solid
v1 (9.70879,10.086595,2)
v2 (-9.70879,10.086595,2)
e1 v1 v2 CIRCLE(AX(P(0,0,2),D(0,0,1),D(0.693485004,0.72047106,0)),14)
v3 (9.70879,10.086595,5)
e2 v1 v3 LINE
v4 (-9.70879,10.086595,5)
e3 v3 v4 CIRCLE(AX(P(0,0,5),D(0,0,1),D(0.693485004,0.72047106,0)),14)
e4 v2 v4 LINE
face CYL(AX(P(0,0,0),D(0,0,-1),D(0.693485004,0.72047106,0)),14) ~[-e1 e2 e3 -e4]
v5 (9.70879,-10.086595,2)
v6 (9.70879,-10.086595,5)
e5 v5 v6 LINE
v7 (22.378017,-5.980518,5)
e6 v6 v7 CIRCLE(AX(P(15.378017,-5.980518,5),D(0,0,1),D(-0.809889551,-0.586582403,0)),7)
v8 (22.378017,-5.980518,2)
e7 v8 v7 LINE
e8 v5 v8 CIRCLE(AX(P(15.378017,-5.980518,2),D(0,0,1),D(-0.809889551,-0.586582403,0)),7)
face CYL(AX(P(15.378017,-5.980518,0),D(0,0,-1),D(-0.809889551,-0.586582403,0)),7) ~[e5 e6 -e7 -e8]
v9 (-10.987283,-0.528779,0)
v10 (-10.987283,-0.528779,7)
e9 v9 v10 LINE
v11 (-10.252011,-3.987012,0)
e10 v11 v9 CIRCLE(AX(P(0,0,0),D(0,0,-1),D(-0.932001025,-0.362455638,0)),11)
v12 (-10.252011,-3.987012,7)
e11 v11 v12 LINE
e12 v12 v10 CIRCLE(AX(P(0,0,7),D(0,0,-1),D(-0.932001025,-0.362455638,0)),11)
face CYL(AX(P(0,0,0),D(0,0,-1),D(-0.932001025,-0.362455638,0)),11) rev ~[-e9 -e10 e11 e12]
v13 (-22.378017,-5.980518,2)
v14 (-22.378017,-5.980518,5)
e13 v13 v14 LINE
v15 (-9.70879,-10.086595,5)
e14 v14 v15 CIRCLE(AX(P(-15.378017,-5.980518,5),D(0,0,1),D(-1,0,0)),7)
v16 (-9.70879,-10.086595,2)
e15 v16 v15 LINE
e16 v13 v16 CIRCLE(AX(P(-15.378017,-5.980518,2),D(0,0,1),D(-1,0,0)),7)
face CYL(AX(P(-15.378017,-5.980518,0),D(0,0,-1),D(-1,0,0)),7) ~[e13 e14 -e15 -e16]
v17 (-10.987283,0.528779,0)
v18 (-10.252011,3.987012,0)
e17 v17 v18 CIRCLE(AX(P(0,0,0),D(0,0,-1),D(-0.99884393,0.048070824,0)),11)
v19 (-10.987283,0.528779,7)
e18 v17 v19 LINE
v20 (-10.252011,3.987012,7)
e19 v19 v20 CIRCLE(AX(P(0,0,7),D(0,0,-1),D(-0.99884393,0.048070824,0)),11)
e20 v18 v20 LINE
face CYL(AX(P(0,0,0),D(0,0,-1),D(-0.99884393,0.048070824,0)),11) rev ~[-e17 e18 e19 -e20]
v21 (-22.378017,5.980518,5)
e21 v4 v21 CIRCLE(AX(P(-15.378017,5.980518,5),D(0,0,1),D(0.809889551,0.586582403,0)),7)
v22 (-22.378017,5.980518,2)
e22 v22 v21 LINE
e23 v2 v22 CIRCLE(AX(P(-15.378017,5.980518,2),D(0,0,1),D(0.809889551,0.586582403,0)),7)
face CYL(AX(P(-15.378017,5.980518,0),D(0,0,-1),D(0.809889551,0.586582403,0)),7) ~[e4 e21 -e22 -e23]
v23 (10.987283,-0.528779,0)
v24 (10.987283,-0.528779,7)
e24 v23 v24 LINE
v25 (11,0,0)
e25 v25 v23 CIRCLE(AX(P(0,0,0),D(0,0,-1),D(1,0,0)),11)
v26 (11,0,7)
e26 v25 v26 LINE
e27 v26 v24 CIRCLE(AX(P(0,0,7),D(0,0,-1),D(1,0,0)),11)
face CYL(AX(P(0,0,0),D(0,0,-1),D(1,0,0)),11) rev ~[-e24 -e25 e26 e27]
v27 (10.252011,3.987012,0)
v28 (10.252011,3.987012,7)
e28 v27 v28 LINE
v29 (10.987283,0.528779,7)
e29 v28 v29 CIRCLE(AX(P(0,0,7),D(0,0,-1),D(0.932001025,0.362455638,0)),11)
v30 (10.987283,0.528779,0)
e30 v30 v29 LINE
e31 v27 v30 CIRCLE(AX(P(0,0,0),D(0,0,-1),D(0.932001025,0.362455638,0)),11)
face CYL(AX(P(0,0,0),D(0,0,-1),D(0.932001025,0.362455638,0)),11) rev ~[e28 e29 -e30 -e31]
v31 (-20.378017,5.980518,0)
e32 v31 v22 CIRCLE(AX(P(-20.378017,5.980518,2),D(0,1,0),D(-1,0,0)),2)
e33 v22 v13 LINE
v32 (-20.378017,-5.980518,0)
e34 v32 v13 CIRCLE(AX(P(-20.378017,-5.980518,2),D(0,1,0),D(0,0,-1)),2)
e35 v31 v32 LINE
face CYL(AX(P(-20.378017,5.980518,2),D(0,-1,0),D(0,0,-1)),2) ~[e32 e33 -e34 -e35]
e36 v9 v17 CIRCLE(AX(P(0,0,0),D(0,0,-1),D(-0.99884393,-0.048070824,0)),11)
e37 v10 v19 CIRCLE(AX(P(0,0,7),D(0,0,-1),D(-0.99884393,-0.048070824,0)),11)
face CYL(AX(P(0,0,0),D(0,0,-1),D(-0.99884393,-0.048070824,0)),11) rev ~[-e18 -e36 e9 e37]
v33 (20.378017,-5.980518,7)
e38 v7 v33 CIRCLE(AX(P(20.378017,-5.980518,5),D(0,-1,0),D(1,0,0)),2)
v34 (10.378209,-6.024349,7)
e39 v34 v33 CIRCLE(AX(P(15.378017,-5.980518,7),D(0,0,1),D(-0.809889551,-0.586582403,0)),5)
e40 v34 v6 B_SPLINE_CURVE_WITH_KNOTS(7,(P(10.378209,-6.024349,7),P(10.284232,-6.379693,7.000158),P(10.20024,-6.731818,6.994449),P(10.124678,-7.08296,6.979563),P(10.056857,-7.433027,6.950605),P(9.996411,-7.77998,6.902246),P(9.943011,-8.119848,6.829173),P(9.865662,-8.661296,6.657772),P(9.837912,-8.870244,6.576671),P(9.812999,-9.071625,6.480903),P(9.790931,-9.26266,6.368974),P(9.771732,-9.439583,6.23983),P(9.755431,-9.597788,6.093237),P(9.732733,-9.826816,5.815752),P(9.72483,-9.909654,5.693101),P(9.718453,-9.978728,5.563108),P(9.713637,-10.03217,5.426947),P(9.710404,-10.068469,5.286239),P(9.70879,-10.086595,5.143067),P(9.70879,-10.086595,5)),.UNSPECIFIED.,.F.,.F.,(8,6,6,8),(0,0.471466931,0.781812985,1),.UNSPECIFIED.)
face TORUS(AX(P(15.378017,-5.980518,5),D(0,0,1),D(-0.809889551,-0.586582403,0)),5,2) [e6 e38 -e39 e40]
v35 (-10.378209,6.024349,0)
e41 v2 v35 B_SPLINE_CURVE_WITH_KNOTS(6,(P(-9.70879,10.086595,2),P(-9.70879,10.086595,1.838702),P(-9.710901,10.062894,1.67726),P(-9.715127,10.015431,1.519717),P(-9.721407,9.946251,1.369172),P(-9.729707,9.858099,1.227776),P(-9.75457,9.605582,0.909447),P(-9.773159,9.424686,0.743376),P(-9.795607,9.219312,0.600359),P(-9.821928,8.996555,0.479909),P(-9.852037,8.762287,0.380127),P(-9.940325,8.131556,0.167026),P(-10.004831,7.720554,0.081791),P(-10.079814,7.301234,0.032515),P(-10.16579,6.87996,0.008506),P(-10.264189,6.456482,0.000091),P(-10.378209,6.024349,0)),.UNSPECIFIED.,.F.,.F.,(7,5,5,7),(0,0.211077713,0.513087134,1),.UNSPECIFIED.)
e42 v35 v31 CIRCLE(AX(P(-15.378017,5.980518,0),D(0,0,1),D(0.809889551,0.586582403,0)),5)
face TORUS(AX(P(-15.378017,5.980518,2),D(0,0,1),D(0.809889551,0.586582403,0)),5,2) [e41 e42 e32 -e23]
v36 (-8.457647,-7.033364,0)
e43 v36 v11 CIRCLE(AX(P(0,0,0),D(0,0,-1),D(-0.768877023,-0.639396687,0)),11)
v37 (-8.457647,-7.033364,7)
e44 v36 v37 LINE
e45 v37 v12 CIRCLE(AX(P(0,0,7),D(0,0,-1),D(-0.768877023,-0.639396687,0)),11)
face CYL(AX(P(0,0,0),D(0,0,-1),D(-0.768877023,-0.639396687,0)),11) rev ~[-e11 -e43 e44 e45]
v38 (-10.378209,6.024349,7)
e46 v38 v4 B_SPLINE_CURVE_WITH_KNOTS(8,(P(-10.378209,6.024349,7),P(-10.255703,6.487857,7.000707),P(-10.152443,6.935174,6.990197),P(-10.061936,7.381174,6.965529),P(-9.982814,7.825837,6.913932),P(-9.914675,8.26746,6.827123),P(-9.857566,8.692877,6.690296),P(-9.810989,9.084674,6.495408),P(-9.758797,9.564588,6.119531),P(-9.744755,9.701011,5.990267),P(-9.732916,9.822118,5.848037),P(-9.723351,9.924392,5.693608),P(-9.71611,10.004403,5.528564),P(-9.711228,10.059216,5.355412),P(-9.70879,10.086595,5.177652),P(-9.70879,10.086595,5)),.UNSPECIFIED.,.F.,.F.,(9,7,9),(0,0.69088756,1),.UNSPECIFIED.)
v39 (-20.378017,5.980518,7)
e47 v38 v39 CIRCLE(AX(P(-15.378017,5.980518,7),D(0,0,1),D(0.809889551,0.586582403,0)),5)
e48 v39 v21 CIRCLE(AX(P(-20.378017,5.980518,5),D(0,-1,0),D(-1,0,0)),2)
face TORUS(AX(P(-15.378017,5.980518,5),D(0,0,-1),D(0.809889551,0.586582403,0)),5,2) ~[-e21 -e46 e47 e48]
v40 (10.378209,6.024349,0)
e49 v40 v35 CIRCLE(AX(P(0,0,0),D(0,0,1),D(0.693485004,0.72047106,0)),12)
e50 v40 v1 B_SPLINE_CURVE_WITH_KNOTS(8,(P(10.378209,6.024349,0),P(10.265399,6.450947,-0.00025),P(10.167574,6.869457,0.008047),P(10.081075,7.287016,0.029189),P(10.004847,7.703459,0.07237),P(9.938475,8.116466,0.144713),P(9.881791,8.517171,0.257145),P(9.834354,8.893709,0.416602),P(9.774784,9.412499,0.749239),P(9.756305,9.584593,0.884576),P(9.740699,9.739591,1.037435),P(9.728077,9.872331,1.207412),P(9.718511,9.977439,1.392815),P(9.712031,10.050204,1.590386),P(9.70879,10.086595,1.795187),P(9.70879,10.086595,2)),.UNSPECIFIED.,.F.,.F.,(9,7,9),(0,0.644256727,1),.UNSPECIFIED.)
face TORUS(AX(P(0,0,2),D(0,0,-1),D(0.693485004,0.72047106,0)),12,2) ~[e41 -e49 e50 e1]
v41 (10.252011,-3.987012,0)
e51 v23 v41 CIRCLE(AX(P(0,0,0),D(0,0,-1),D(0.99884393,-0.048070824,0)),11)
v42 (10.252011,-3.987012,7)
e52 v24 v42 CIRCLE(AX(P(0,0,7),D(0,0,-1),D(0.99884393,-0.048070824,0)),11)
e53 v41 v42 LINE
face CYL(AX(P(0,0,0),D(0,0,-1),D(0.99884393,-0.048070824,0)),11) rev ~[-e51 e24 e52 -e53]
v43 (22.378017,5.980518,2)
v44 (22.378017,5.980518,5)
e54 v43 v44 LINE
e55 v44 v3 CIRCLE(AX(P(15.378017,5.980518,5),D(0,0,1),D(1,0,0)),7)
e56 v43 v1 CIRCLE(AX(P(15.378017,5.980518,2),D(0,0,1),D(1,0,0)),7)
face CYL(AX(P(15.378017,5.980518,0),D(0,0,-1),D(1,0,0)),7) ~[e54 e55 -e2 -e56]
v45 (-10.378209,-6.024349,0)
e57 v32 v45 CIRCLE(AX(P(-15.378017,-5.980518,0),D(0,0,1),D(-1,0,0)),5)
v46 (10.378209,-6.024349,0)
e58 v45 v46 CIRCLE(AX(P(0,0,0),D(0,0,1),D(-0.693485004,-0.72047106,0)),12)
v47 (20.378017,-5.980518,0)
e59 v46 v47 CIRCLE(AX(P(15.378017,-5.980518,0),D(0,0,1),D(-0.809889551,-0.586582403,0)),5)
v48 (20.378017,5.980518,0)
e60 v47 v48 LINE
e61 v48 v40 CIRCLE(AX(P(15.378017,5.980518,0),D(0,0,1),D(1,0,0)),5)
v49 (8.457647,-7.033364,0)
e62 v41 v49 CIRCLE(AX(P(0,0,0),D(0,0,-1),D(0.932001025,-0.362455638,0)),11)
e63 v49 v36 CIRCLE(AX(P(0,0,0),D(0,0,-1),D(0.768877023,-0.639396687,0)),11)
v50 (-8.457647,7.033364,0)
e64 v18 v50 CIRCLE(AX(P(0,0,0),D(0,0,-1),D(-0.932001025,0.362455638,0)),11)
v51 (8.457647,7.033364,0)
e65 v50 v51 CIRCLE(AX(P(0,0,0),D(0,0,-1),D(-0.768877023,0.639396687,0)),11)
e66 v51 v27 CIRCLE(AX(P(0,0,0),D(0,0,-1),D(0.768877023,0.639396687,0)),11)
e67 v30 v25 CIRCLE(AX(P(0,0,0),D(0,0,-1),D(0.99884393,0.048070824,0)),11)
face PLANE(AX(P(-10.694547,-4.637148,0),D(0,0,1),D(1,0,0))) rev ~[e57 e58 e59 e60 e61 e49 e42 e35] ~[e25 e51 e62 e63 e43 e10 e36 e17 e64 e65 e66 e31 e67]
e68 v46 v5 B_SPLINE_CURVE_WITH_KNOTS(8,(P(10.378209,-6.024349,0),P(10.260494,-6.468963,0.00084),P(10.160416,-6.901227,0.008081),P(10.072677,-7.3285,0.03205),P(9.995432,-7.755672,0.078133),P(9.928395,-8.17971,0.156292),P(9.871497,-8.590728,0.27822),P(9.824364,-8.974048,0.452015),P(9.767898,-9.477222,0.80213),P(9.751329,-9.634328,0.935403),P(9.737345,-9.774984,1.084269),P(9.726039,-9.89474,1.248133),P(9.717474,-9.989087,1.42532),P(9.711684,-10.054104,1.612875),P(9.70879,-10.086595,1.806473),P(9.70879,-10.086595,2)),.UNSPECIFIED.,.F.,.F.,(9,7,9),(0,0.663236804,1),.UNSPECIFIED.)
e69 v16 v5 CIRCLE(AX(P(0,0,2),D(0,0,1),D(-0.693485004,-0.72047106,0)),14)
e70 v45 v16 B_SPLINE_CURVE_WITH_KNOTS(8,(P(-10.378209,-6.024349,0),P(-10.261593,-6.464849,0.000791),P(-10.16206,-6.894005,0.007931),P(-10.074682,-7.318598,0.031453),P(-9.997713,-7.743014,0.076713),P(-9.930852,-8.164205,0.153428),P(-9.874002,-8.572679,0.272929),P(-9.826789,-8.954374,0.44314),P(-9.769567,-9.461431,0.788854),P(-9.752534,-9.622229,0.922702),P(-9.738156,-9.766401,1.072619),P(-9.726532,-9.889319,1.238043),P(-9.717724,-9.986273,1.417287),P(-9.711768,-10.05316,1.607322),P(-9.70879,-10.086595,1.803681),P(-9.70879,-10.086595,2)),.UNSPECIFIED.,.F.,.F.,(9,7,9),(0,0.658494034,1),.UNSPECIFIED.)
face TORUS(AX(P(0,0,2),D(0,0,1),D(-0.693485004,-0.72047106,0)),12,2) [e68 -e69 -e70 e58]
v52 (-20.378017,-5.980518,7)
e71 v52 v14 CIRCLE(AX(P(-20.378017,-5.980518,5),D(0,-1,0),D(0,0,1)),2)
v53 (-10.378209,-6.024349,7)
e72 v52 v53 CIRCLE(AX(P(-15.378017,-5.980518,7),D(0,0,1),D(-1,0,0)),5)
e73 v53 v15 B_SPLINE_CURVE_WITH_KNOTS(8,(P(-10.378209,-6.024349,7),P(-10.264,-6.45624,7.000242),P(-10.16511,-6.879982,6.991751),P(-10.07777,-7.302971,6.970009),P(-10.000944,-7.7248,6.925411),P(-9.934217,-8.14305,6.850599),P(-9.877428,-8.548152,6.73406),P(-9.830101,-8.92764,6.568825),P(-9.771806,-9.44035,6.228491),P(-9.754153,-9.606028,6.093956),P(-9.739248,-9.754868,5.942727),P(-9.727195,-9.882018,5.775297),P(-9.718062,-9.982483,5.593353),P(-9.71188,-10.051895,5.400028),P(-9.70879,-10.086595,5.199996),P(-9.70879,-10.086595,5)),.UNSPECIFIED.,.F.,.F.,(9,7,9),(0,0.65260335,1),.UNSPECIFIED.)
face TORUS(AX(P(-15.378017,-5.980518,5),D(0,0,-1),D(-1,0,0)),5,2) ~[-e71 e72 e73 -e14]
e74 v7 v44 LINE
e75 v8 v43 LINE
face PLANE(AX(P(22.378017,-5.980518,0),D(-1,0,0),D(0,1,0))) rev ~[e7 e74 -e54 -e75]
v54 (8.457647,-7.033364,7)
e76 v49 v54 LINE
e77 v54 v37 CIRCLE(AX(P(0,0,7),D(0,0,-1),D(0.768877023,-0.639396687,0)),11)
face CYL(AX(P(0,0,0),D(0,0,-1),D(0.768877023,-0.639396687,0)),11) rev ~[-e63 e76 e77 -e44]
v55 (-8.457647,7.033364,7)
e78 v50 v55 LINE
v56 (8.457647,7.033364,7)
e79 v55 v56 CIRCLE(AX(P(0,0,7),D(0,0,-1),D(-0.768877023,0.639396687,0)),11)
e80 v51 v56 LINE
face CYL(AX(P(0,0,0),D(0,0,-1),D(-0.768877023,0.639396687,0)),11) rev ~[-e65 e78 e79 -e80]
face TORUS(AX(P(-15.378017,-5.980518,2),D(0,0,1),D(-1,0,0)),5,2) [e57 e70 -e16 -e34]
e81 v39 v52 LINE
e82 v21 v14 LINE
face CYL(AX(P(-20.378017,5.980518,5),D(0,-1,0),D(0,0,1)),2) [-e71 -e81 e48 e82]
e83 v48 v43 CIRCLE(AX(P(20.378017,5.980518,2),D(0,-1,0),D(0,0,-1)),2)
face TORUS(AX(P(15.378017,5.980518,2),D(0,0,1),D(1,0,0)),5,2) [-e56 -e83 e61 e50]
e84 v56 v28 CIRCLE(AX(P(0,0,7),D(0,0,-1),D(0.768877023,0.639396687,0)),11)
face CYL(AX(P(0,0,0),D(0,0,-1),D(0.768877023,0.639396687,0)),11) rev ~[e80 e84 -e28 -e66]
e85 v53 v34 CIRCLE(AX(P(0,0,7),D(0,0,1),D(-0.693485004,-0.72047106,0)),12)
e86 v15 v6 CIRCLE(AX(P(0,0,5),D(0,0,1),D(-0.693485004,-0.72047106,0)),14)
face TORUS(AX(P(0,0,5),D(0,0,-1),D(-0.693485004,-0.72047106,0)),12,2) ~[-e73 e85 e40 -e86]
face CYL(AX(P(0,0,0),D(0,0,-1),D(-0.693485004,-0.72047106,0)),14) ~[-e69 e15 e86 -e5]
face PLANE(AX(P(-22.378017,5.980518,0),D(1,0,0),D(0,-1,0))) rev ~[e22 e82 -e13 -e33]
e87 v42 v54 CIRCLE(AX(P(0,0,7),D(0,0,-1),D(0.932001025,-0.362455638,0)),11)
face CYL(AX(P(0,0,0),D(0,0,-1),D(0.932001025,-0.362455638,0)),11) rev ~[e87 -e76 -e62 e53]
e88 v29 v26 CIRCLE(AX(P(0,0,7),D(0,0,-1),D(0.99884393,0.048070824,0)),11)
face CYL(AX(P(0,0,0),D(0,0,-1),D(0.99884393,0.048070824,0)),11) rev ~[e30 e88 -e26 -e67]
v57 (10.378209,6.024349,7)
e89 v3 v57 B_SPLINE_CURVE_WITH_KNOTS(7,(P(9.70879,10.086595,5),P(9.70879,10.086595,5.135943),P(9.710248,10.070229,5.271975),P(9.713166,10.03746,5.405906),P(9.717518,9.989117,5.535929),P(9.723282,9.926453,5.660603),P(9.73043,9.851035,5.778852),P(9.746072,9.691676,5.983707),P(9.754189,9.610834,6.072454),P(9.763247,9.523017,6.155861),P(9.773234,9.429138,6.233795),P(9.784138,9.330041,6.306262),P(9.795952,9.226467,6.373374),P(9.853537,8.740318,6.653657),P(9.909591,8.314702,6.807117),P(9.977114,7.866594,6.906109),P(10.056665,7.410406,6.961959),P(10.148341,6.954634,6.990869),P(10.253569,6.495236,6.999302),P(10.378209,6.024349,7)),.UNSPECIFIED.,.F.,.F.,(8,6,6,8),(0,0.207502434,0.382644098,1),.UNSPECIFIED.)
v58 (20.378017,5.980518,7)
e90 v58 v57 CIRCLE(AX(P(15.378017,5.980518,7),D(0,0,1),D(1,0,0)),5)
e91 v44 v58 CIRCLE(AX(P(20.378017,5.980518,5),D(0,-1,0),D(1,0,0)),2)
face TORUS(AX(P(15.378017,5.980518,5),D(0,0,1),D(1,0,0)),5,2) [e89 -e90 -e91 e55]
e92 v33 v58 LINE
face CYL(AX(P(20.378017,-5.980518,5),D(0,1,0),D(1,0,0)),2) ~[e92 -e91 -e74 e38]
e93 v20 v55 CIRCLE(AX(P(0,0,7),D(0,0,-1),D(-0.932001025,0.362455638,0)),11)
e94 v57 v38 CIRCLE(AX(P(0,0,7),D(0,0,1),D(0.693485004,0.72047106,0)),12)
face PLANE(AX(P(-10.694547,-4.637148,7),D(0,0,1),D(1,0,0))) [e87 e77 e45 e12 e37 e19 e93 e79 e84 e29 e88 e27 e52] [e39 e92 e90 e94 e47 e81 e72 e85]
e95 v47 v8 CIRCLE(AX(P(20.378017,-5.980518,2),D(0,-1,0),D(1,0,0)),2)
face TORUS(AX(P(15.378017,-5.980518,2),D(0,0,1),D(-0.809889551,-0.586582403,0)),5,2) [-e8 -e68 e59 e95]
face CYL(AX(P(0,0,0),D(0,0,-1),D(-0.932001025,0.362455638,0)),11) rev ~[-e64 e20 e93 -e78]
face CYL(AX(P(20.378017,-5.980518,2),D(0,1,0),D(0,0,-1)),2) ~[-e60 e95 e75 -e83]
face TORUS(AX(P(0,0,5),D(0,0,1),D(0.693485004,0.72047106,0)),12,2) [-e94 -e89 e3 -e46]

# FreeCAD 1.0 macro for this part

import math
import FreeCAD as App
import Part
import Sketcher
from FreeCAD import Vector


def edges_at(feature, points):
    """Names of the edges that pass closest to the given points."""
    edges = feature.Shape.Edges
    near = lambda p: min(range(len(edges)), key=lambda i: edges[i].distToShape(Part.Vertex(*p))[0])
    return sorted({f"Edge{near(p) + 1}" for p in points})

doc = App.newDocument("Part")
body = doc.addObject("PartDesign::Body", "Body")

# Sketch on XY plane
sketch1 = doc.addObject("Sketcher::SketchObject", "Sketch")
body.addObject(sketch1)
sketch1.AttachmentSupport = (doc.XY_Plane, [""])
sketch1.MapMode = "FlatFace"
sketch1.addGeometry([
    Part.ArcOfCircle(Part.Circle(Vector(15.378, 5.981, 0), Vector(0, 0, 1), 7), math.radians(0), math.radians(144)),  # 0
    Part.ArcOfCircle(Part.Circle(Vector(0, 0, 0), Vector(0, 0, 1), 14), math.radians(46), math.radians(134)),  # 1
    Part.ArcOfCircle(Part.Circle(Vector(-15.378, 5.981, 0), Vector(0, 0, 1), 7), math.radians(36), math.radians(180)),  # 2
    Part.LineSegment(Vector(-22.378, 5.981, 0), Vector(-22.378, -5.981, 0)),  # 3
    Part.ArcOfCircle(Part.Circle(Vector(-15.378, -5.981, 0), Vector(0, 0, 1), 7), math.radians(180), math.radians(324)),  # 4
    Part.ArcOfCircle(Part.Circle(Vector(0, 0, 0), Vector(0, 0, 1), 14), math.radians(-134), math.radians(-46)),  # 5
    Part.ArcOfCircle(Part.Circle(Vector(15.378, -5.981, 0), Vector(0, 0, 1), 7), math.radians(-144), math.radians(0)),  # 6
    Part.LineSegment(Vector(22.378, -5.981, 0), Vector(22.378, 5.981, 0)),  # 7
    Part.ArcOfCircle(Part.Circle(Vector(0, 0, 0), Vector(0, 0, 1), 11), math.radians(21.25), math.radians(39.75)),  # 8
    Part.ArcOfCircle(Part.Circle(Vector(0, 0, 0), Vector(0, 0, 1), 11), math.radians(2.76), math.radians(21.25)),  # 9
    Part.ArcOfCircle(Part.Circle(Vector(0, 0, 0), Vector(0, 0, 1), 11), math.radians(0), math.radians(2.76)),  # 10
    Part.ArcOfCircle(Part.Circle(Vector(0, 0, 0), Vector(0, 0, 1), 11), math.radians(-2.76), math.radians(0)),  # 11
    Part.ArcOfCircle(Part.Circle(Vector(0, 0, 0), Vector(0, 0, 1), 11), math.radians(-21.25), math.radians(-2.76)),  # 12
    Part.ArcOfCircle(Part.Circle(Vector(0, 0, 0), Vector(0, 0, 1), 11), math.radians(-39.75), math.radians(-21.25)),  # 13
    Part.ArcOfCircle(Part.Circle(Vector(0, 0, 0), Vector(0, 0, 1), 11), math.radians(-140), math.radians(-40)),  # 14
    Part.ArcOfCircle(Part.Circle(Vector(0, 0, 0), Vector(0, 0, 1), 11), math.radians(-158.75), math.radians(-140.25)),  # 15
    Part.ArcOfCircle(Part.Circle(Vector(0, 0, 0), Vector(0, 0, 1), 11), math.radians(-177.24), math.radians(-158.75)),  # 16
    Part.ArcOfCircle(Part.Circle(Vector(0, 0, 0), Vector(0, 0, 1), 11), math.radians(177.24), math.radians(182.76)),  # 17
    Part.ArcOfCircle(Part.Circle(Vector(0, 0, 0), Vector(0, 0, 1), 11), math.radians(158.75), math.radians(177.24)),  # 18
    Part.ArcOfCircle(Part.Circle(Vector(0, 0, 0), Vector(0, 0, 1), 11), math.radians(140.25), math.radians(158.75)),  # 19
    Part.ArcOfCircle(Part.Circle(Vector(0, 0, 0), Vector(0, 0, 1), 11), math.radians(40), math.radians(140)),  # 20
    Part.ArcOfCircle(Part.Circle(Vector(-15.378, -5.981, 0), Vector(0, 0, 1), 5.25), math.radians(0), math.radians(74)),  # 21
    Part.ArcOfCircle(Part.Circle(Vector(-15.378, -5.981, 0), Vector(0, 0, 1), 5.25), math.radians(-32), math.radians(0)),  # 22
    Part.ArcOfCircle(Part.Circle(Vector(-15.378, -5.981, 0), Vector(0, 0, 1), 5.25), math.radians(104), math.radians(328)),  # 23
    Part.ArcOfCircle(Part.Circle(Vector(-15.378, -5.981, 0), Vector(0, 0, 1), 5.25), math.radians(76), math.radians(104)),  # 24
    Part.ArcOfCircle(Part.Circle(Vector(-15.378, -5.981, 0), Vector(0, 0, 1), 5.25), math.radians(74.44), math.radians(75.57)),  # 25
    Part.ArcOfCircle(Part.Circle(Vector(15.378, 5.981, 0), Vector(0, 0, 1), 7), math.radians(-121.31), math.radians(-101.58)),  # 26
    Part.ArcOfCircle(Part.Circle(Vector(15.378, -5.981, 0), Vector(0, 0, 1), 7), math.radians(101.58), math.radians(121.31)),  # 27
    Part.ArcOfCircle(Part.Circle(Vector(0, 0, 0), Vector(0, 0, 1), 14), math.radians(0), math.radians(3.59)),  # 28
    Part.ArcOfCircle(Part.Circle(Vector(0, 0, 0), Vector(0, 0, 1), 14), math.radians(-3.59), math.radians(0)),  # 29
    Part.ArcOfCircle(Part.Circle(Vector(15.378, 5.981, 0), Vector(0, 0, 1), 7), math.radians(-101.58), math.radians(-100.77)),  # 30
    Part.ArcOfCircle(Part.Circle(Vector(15.378, -5.981, 0), Vector(0, 0, 1), 5.25), math.radians(76), math.radians(104)),  # 31
    Part.ArcOfCircle(Part.Circle(Vector(15.378, -5.981, 0), Vector(0, 0, 1), 5.25), math.radians(-148), math.radians(76)),  # 32
    Part.ArcOfCircle(Part.Circle(Vector(15.378, -5.981, 0), Vector(0, 0, 1), 5.25), math.radians(106), math.radians(212)),  # 33
    Part.ArcOfCircle(Part.Circle(Vector(0, 0, 0), Vector(0, 0, 1), 14), math.radians(-3.78), math.radians(-3.59)),  # 34
    Part.ArcOfCircle(Part.Circle(Vector(-15.378, 5.981, 0), Vector(0, 0, 1), 5.25), math.radians(-75.57), math.radians(-74.44)),  # 35
    Part.ArcOfCircle(Part.Circle(Vector(-15.378, 5.981, 0), Vector(0, 0, 1), 5.25), math.radians(-104), math.radians(-76)),  # 36
    Part.ArcOfCircle(Part.Circle(Vector(-15.378, 5.981, 0), Vector(0, 0, 1), 5.25), math.radians(32), math.radians(256)),  # 37
    Part.ArcOfCircle(Part.Circle(Vector(-15.378, 5.981, 0), Vector(0, 0, 1), 5.25), math.radians(0), math.radians(32)),  # 38
    Part.ArcOfCircle(Part.Circle(Vector(-15.378, 5.981, 0), Vector(0, 0, 1), 5.25), math.radians(-74), math.radians(0)),  # 39
    Part.ArcOfCircle(Part.Circle(Vector(15.378, 5.981, 0), Vector(0, 0, 1), 5.25), math.radians(-104), math.radians(-76)),  # 40
    Part.ArcOfCircle(Part.Circle(Vector(15.378, 5.981, 0), Vector(0, 0, 1), 5.25), math.radians(-105.56), math.radians(-104.43)),  # 41
    Part.ArcOfCircle(Part.Circle(Vector(15.378, 5.981, 0), Vector(0, 0, 1), 5.25), math.radians(148), math.radians(254)),  # 42
    Part.ArcOfCircle(Part.Circle(Vector(15.378, 5.981, 0), Vector(0, 0, 1), 5.25), math.radians(-76), math.radians(148)),  # 43
], False)
sketch1.addConstraint([
    Sketcher.Constraint("Coincident", 0, 2, 1, 1),
    Sketcher.Constraint("Coincident", 1, 2, 2, 1),
    Sketcher.Constraint("Tangent", 2, 2, 3, 1),
    Sketcher.Constraint("Tangent", 3, 2, 4, 1),
    Sketcher.Constraint("Coincident", 4, 2, 5, 1),
    Sketcher.Constraint("Coincident", 5, 2, 6, 1),
    Sketcher.Constraint("Tangent", 6, 2, 7, 1),
    Sketcher.Constraint("Tangent", 7, 2, 0, 1),
    Sketcher.Constraint("Tangent", 8, 1, 9, 2),
    Sketcher.Constraint("Tangent", 9, 1, 10, 2),
    Sketcher.Constraint("Tangent", 10, 1, 11, 2),
    Sketcher.Constraint("Tangent", 11, 1, 12, 2),
    Sketcher.Constraint("Tangent", 12, 1, 13, 2),
    Sketcher.Constraint("Tangent", 13, 1, 14, 2),
    Sketcher.Constraint("Tangent", 14, 1, 15, 2),
    Sketcher.Constraint("Tangent", 15, 1, 16, 2),
    Sketcher.Constraint("Tangent", 16, 1, 17, 2),
    Sketcher.Constraint("Tangent", 17, 1, 18, 2),
    Sketcher.Constraint("Tangent", 18, 1, 19, 2),
    Sketcher.Constraint("Tangent", 19, 1, 20, 2),
    Sketcher.Constraint("Tangent", 20, 1, 8, 2),
    Sketcher.Constraint("Tangent", 21, 1, 22, 2),
    Sketcher.Constraint("Tangent", 22, 1, 23, 2),
    Sketcher.Constraint("Tangent", 23, 1, 24, 2),
    Sketcher.Constraint("Tangent", 24, 1, 25, 2),
    Sketcher.Constraint("Tangent", 25, 1, 21, 2),
    Sketcher.Constraint("Coincident", 26, 1, 27, 2),
    Sketcher.Constraint("Coincident", 27, 1, 28, 2),
    Sketcher.Constraint("Tangent", 28, 1, 29, 2),
    Sketcher.Constraint("Coincident", 29, 1, 26, 2),
    Sketcher.Constraint("Coincident", 30, 2, 31, 2),
    Sketcher.Constraint("Tangent", 31, 1, 32, 2),
    Sketcher.Constraint("Tangent", 32, 1, 33, 2),
    Sketcher.Constraint("Coincident", 33, 1, 34, 1),
    Sketcher.Constraint("Coincident", 34, 2, 30, 1),
    Sketcher.Constraint("Tangent", 35, 1, 36, 2),
    Sketcher.Constraint("Tangent", 36, 1, 37, 2),
    Sketcher.Constraint("Tangent", 37, 1, 38, 2),
    Sketcher.Constraint("Tangent", 38, 1, 39, 2),
    Sketcher.Constraint("Tangent", 39, 1, 35, 2),
    Sketcher.Constraint("Tangent", 40, 1, 41, 2),
    Sketcher.Constraint("Tangent", 41, 1, 42, 2),
    Sketcher.Constraint("Tangent", 42, 1, 43, 2),
    Sketcher.Constraint("Tangent", 43, 1, 40, 2),
    Sketcher.Constraint("Vertical", 3),
    Sketcher.Constraint("Vertical", 7),
    Sketcher.Constraint("Coincident", 1, 3, -1, 1),
    Sketcher.Constraint("Coincident", 5, 3, -1, 1),
    Sketcher.Constraint("Coincident", 8, 3, -1, 1),
    Sketcher.Constraint("Coincident", 10, 3, -1, 1),
    Sketcher.Constraint("Coincident", 12, 3, -1, 1),
    Sketcher.Constraint("Coincident", 14, 3, -1, 1),
    Sketcher.Constraint("Coincident", 16, 3, -1, 1),
    Sketcher.Constraint("Coincident", 18, 3, -1, 1),
    Sketcher.Constraint("Coincident", 28, 3, -1, 1),
    Sketcher.Constraint("Coincident", 34, 3, -1, 1),
    Sketcher.Constraint("Coincident", 21, 3, 4, 3),
    Sketcher.Constraint("Coincident", 23, 3, 4, 3),
    Sketcher.Constraint("Coincident", 26, 3, 0, 3),
    Sketcher.Constraint("Coincident", 27, 3, 6, 3),
    Sketcher.Constraint("Coincident", 30, 3, 0, 3),
    Sketcher.Constraint("Coincident", 31, 3, 6, 3),
    Sketcher.Constraint("Coincident", 33, 3, 6, 3),
    Sketcher.Constraint("Coincident", 35, 3, 2, 3),
    Sketcher.Constraint("Coincident", 37, 3, 2, 3),
    Sketcher.Constraint("Coincident", 40, 3, 0, 3),
    Sketcher.Constraint("Coincident", 34, 2, 29, 1),
    Sketcher.Constraint("Equal", 0, 2),
    Sketcher.Constraint("Equal", 2, 4),
    Sketcher.Constraint("Equal", 1, 5),
    Sketcher.Constraint("Equal", 4, 6),
    Sketcher.Constraint("Equal", 6, 26),
    Sketcher.Constraint("Equal", 26, 27),
    Sketcher.Constraint("Equal", 5, 28),
    Sketcher.Constraint("Equal", 28, 29),
    Sketcher.Constraint("Equal", 25, 31),
    Sketcher.Constraint("Equal", 33, 35),
    Sketcher.Constraint("Equal", 39, 40),
    Sketcher.Constraint("Equal", 40, 41),
    Sketcher.Constraint("Symmetric", 0, 3, 4, 3, -1, 1),
    Sketcher.Constraint("Symmetric", 30, 2, 35, 1, -1, 1),
    Sketcher.Constraint("Symmetric", 24, 1, 30, 2, -2),
    Sketcher.Constraint("PointOnObject", 10, 1, -1),
    Sketcher.Constraint("PointOnObject", 28, 1, -1),
    Sketcher.Constraint("Horizontal", 13, 1, 14, 1),
    Sketcher.Constraint("Horizontal", 12, 1, 15, 1),
    Sketcher.Constraint("Horizontal", 11, 1, 16, 1),
    Sketcher.Constraint("Horizontal", 9, 1, 17, 1),
    Sketcher.Constraint("Horizontal", 8, 1, 18, 1),
    Sketcher.Constraint("Horizontal", 19, 1, 20, 1),
    Sketcher.Constraint("Horizontal", 6, 2, 21, 1),
    Sketcher.Constraint("Horizontal", 23, 1, 24, 1),
    Sketcher.Constraint("Horizontal", 30, 2, 31, 1),
    Sketcher.Constraint("Horizontal", 22, 1, 32, 1),
    Sketcher.Constraint("Horizontal", 25, 1, 33, 1),
    Sketcher.Constraint("Horizontal", 35, 1, 36, 1),
    Sketcher.Constraint("Horizontal", 7, 2, 38, 1),
    Sketcher.Constraint("Horizontal", 36, 1, 40, 1),
    Sketcher.Constraint("Horizontal", 39, 1, 41, 1),
    Sketcher.Constraint("Horizontal", 37, 1, 42, 1),
    Sketcher.Constraint("Horizontal", 40, 1, 43, 1),
    Sketcher.Constraint("Vertical", 9, 1, 11, 1),
    Sketcher.Constraint("Vertical", 8, 1, 12, 1),
    Sketcher.Constraint("Vertical", 14, 1, 19, 1),
    Sketcher.Constraint("Vertical", 22, 1, 37, 1),
    Sketcher.Constraint("Vertical", 25, 1, 39, 1),
    Sketcher.Constraint("Radius", 0, 7.0),
    Sketcher.Constraint("Radius", 1, 14.0),
    Sketcher.Constraint("Radius", 8, 11.0),
    Sketcher.Constraint("Radius", 21, 5.25),
    Sketcher.Constraint("DistanceY", 3, 2, 3, 1, 11.961036),
    Sketcher.Constraint("DistanceX", -1, 1, 0, 2, 9.70879),
    Sketcher.Constraint("DistanceX", -1, 1, 8, 1, 10.252011),
    Sketcher.Constraint("DistanceY", -1, 1, 9, 1, 0.528779),
    Sketcher.Constraint("DistanceX", 22, 1, -1, 1, 10.922652),
    Sketcher.Constraint("DistanceX", -1, 1, 13, 1, 8.457647),
])
pad1 = doc.addObject("PartDesign::Pad", "Pad")
body.addObject(pad1)
pad1.Profile = sketch1
pad1.Length = 7

# Sketch on XY plane
sketch2 = doc.addObject("Sketcher::SketchObject", "Sketch001")
body.addObject(sketch2)
sketch2.AttachmentSupport = (doc.XY_Plane, [""])
sketch2.MapMode = "FlatFace"
sketch2.addGeometry([
    Part.ArcOfCircle(Part.Circle(Vector(0, 0, 0), Vector(0, 0, 1), 14), math.radians(46), math.radians(134)),  # 0
    Part.ArcOfCircle(Part.Circle(Vector(-15.4, 6, 0), Vector(0, 0, 1), 7), math.radians(36), math.radians(180)),  # 1
    Part.LineSegment(Vector(-22.4, 6, 0), Vector(-22.4, -6, 0)),  # 2
    Part.ArcOfCircle(Part.Circle(Vector(-15.4, -6, 0), Vector(0, 0, 1), 7), math.radians(180), math.radians(324)),  # 3
    Part.ArcOfCircle(Part.Circle(Vector(0, 0, 0), Vector(0, 0, 1), 14), math.radians(-134), math.radians(-46)),  # 4
    Part.ArcOfCircle(Part.Circle(Vector(15.4, -6, 0), Vector(0, 0, 1), 7), math.radians(-144), math.radians(0)),  # 5
    Part.LineSegment(Vector(22.4, -6, 0), Vector(22.4, 6, 0)),  # 6
    Part.ArcOfCircle(Part.Circle(Vector(15.4, 6, 0), Vector(0, 0, 1), 7), math.radians(0), math.radians(144)),  # 7
    Part.ArcOfCircle(Part.Circle(Vector(0, 0, 0), Vector(0, 0, 1), 11), math.radians(158.75), math.radians(177.24)),  # 8
    Part.ArcOfCircle(Part.Circle(Vector(0, 0, 0), Vector(0, 0, 1), 11), math.radians(140.25), math.radians(158.75)),  # 9
    Part.ArcOfCircle(Part.Circle(Vector(0, 0, 0), Vector(0, 0, 1), 11), math.radians(40), math.radians(140)),  # 10
    Part.ArcOfCircle(Part.Circle(Vector(0, 0, 0), Vector(0, 0, 1), 11), math.radians(21.25), math.radians(39.75)),  # 11
    Part.ArcOfCircle(Part.Circle(Vector(0, 0, 0), Vector(0, 0, 1), 11), math.radians(2.76), math.radians(21.25)),  # 12
    Part.ArcOfCircle(Part.Circle(Vector(0, 0, 0), Vector(0, 0, 1), 11), math.radians(0), math.radians(2.76)),  # 13
    Part.ArcOfCircle(Part.Circle(Vector(0, 0, 0), Vector(0, 0, 1), 11), math.radians(-2.76), math.radians(0)),  # 14
    Part.ArcOfCircle(Part.Circle(Vector(0, 0, 0), Vector(0, 0, 1), 11), math.radians(-21.25), math.radians(-2.76)),  # 15
    Part.ArcOfCircle(Part.Circle(Vector(0, 0, 0), Vector(0, 0, 1), 11), math.radians(-39.75), math.radians(-21.25)),  # 16
    Part.ArcOfCircle(Part.Circle(Vector(0, 0, 0), Vector(0, 0, 1), 11), math.radians(-140), math.radians(-40)),  # 17
    Part.ArcOfCircle(Part.Circle(Vector(0, 0, 0), Vector(0, 0, 1), 11), math.radians(-158.75), math.radians(-140.25)),  # 18
    Part.ArcOfCircle(Part.Circle(Vector(0, 0, 0), Vector(0, 0, 1), 11), math.radians(-177.24), math.radians(-158.75)),  # 19
    Part.ArcOfCircle(Part.Circle(Vector(0, 0, 0), Vector(0, 0, 1), 11), math.radians(177.24), math.radians(182.76)),  # 20
], False)
sketch2.addConstraint([
    Sketcher.Constraint("Coincident", 0, 2, 1, 1),
    Sketcher.Constraint("Tangent", 1, 2, 2, 1),
    Sketcher.Constraint("Tangent", 2, 2, 3, 1),
    Sketcher.Constraint("Coincident", 3, 2, 4, 1),
    Sketcher.Constraint("Coincident", 4, 2, 5, 1),
    Sketcher.Constraint("Tangent", 5, 2, 6, 1),
    Sketcher.Constraint("Tangent", 6, 2, 7, 1),
    Sketcher.Constraint("Coincident", 7, 2, 0, 1),
    Sketcher.Constraint("Tangent", 8, 1, 9, 2),
    Sketcher.Constraint("Tangent", 9, 1, 10, 2),
    Sketcher.Constraint("Tangent", 10, 1, 11, 2),
    Sketcher.Constraint("Tangent", 11, 1, 12, 2),
    Sketcher.Constraint("Tangent", 12, 1, 13, 2),
    Sketcher.Constraint("Tangent", 13, 1, 14, 2),
    Sketcher.Constraint("Tangent", 14, 1, 15, 2),
    Sketcher.Constraint("Tangent", 15, 1, 16, 2),
    Sketcher.Constraint("Tangent", 16, 1, 17, 2),
    Sketcher.Constraint("Tangent", 17, 1, 18, 2),
    Sketcher.Constraint("Tangent", 18, 1, 19, 2),
    Sketcher.Constraint("Tangent", 19, 1, 20, 2),
    Sketcher.Constraint("Tangent", 20, 1, 8, 2),
    Sketcher.Constraint("Vertical", 2),
    Sketcher.Constraint("Vertical", 6),
    Sketcher.Constraint("Coincident", 0, 3, -1, 1),
    Sketcher.Constraint("Coincident", 4, 3, -1, 1),
    Sketcher.Constraint("Coincident", 8, 3, -1, 1),
    Sketcher.Constraint("Coincident", 10, 3, -1, 1),
    Sketcher.Constraint("Coincident", 12, 3, -1, 1),
    Sketcher.Constraint("Coincident", 14, 3, -1, 1),
    Sketcher.Constraint("Coincident", 16, 3, -1, 1),
    Sketcher.Constraint("Coincident", 18, 3, -1, 1),
    Sketcher.Constraint("Equal", 1, 3),
    Sketcher.Constraint("Equal", 0, 4),
    Sketcher.Constraint("Equal", 3, 5),
    Sketcher.Constraint("Equal", 5, 7),
    Sketcher.Constraint("Symmetric", 1, 3, 5, 3, -1, 1),
    Sketcher.Constraint("PointOnObject", 13, 1, -1),
    Sketcher.Constraint("Horizontal", 3, 3, 5, 3),
    Sketcher.Constraint("Horizontal", 1, 3, 7, 3),
    Sketcher.Constraint("Horizontal", 9, 1, 10, 1),
    Sketcher.Constraint("Horizontal", 8, 1, 11, 1),
    Sketcher.Constraint("Horizontal", 16, 1, 17, 1),
    Sketcher.Constraint("Horizontal", 15, 1, 18, 1),
    Sketcher.Constraint("Horizontal", 14, 1, 19, 1),
    Sketcher.Constraint("Horizontal", 12, 1, 20, 1),
    Sketcher.Constraint("Vertical", 12, 1, 14, 1),
    Sketcher.Constraint("Vertical", 11, 1, 15, 1),
    Sketcher.Constraint("Vertical", 10, 1, 16, 1),
    Sketcher.Constraint("Radius", 0, 14.0),
    Sketcher.Constraint("Radius", 1, 7.0),
    Sketcher.Constraint("Radius", 8, 11.0),
    Sketcher.Constraint("DistanceY", 2, 2, 2, 1, 11.961036),
    Sketcher.Constraint("DistanceX", 0, 2, -1, 1, 9.70879),
    Sketcher.Constraint("DistanceX", 8, 1, -1, 1, 10.252011),
    Sketcher.Constraint("DistanceY", -1, 1, 12, 1, 0.528779),
    Sketcher.Constraint("DistanceY", 9, 1, 0, 2, 3.053231),
])
pad2 = doc.addObject("PartDesign::Pad", "Pad001")
body.addObject(pad2)
pad2.Profile = sketch2
pad2.Length = 7
doc.recompute()

fillet = doc.addObject("PartDesign::Fillet", "Fillet")
body.addObject(fillet)
fillet.Base = (pad2, edges_at(pad2, [
    (0, -14, 7),
    (0, -14, 0),
    (17.536, -12.64, 0),
    (0, 14, 0),
    (-17.536, 12.64, 0),
    (-17.536, -12.64, 7),
    (0, 14, 7),
    (17.536, 12.64, 7),
]))
fillet.Radius = 2

doc.recompute()
